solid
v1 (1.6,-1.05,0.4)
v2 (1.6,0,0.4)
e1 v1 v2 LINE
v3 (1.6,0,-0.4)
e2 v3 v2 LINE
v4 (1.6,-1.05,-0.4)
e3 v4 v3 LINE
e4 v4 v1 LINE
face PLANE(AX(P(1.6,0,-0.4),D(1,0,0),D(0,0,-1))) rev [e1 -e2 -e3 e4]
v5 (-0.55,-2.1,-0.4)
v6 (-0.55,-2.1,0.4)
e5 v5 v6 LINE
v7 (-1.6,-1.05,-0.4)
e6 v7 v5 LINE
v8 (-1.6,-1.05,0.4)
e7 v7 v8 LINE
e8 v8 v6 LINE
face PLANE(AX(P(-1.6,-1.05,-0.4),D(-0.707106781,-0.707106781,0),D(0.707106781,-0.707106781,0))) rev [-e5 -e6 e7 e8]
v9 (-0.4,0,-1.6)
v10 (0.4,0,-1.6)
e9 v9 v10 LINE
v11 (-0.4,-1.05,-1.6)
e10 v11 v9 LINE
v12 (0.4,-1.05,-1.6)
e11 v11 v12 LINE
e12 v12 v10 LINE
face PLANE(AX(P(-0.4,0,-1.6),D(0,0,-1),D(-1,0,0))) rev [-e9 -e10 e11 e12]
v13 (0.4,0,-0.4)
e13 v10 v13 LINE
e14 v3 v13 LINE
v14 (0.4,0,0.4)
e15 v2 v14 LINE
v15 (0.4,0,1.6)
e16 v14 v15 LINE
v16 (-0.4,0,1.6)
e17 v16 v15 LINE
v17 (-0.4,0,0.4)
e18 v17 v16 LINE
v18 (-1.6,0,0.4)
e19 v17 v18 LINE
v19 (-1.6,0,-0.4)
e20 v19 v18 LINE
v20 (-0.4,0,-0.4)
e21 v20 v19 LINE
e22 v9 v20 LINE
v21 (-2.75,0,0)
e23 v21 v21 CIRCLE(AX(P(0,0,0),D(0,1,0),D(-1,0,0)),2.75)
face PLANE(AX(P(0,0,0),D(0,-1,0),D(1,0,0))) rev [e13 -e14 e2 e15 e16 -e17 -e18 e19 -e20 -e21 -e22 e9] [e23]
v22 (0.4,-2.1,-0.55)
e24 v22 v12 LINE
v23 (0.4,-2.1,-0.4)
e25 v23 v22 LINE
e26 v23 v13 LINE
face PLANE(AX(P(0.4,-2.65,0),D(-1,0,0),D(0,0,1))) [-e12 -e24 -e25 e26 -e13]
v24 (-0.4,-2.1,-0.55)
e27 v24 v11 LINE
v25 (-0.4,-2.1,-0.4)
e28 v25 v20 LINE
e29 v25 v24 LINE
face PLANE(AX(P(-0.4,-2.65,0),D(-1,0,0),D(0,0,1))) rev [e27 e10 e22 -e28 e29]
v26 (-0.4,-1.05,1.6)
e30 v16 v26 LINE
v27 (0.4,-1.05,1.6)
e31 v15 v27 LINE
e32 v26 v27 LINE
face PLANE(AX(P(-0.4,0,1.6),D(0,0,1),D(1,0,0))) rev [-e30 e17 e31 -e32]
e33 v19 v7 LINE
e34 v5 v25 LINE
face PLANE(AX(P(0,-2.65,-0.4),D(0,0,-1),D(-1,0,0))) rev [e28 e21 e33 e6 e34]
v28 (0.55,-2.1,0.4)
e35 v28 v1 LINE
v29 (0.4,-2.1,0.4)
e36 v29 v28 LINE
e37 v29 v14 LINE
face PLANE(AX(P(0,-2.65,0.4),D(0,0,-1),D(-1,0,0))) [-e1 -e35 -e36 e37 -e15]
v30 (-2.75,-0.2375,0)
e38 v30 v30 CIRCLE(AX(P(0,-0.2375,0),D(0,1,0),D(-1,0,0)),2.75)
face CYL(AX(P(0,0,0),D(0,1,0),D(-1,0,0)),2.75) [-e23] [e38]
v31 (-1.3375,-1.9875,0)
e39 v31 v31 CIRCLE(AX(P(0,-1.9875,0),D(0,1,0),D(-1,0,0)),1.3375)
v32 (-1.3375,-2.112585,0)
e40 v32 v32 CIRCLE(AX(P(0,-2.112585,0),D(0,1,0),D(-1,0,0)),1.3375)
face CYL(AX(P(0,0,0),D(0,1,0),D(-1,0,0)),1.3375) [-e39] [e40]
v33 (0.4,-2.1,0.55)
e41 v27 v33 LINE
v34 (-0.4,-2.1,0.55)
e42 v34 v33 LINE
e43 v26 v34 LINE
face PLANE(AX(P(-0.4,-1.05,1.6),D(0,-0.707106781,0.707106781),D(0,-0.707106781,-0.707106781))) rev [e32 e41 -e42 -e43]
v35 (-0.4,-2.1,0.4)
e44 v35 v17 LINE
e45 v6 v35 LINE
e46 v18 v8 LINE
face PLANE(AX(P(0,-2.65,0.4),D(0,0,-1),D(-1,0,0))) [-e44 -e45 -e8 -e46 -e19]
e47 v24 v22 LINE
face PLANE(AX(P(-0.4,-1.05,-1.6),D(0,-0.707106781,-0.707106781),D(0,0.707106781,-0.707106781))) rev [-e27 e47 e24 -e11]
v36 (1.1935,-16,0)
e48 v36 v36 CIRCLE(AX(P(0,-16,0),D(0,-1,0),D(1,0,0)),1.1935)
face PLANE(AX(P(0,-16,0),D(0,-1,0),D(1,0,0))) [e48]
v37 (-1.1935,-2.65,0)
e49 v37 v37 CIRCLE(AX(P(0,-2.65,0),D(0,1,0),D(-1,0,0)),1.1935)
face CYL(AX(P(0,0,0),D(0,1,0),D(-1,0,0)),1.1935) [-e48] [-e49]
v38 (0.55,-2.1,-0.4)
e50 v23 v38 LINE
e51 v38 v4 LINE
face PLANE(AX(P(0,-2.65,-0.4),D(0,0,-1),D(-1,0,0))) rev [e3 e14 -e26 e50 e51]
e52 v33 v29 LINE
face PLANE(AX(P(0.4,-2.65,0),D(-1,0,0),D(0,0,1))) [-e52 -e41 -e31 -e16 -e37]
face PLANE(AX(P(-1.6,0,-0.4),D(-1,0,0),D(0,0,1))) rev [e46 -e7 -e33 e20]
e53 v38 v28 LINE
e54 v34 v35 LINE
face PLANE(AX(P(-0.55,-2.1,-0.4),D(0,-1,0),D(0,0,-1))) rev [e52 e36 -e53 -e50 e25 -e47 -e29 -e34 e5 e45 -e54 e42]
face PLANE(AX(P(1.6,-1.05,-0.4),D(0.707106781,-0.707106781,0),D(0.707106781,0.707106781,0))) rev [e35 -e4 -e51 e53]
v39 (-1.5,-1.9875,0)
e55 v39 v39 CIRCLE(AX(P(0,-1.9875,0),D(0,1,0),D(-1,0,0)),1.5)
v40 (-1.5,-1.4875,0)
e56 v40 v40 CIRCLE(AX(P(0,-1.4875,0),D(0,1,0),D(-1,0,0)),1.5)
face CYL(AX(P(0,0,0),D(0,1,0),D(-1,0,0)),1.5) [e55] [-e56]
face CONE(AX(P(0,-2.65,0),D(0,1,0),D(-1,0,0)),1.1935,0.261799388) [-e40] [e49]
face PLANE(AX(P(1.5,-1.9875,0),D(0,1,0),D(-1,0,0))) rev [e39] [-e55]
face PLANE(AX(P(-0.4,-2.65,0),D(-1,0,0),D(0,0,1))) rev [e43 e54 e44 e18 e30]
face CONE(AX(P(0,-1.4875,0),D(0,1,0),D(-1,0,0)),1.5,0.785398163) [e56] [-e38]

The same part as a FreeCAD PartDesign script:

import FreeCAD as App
import Part
import Sketcher
from FreeCAD import Vector
Q = App.Units.Quantity

doc = App.newDocument("Part")
params = doc.addObject("Spreadsheet::Sheet", "Params")
for row, (alias, value) in enumerate([
    ("sketch1_height", "8 mm"),
    ("sketch1_height2", "0.5 mm"),
    ("sketch1_width", "2.75 mm"),
    ("sketch1_height3", "5.35 mm"),
    ("revolution_angle", "360 deg"),
    ("sketch2_width", "1.1 mm"),
    ("sketch2_width2", "3.2 mm"),
    ("sketch2_height", "1.05 mm"),
    ("pocket1_length", "0.4 mm"),
    ("pocket1_length2", "0.4 mm"),
    ("sketch3_height", "1.1 mm"),
    ("sketch3_height2", "3.2 mm"),
    ("sketch3_width", "1.05 mm"),
    ("pocket2_length", "0.4 mm"),
    ("pocket2_length2", "0.4 mm"),
    ("pad1_length", "8 mm"),
], start=1):
    params.set(f"A{row}", alias)
    params.set(f"B{row}", "=" + value)
    params.setAlias(f"B{row}", alias)

body = doc.addObject("PartDesign::Body", "Body")

sketch1 = doc.addObject("Sketcher::SketchObject", "Sketch")
body.addObject(sketch1)
sketch1.AttachmentSupport = (doc.XY_Plane, [""])
sketch1.MapMode = "FlatFace"
sketch1.addGeometry([
    Part.LineSegment(Vector(2.75, 0, 0), Vector(0, 0, 0)),
    Part.LineSegment(Vector(0, 0, 0), Vector(0, -8, 0)),
    Part.LineSegment(Vector(0, -8, 0), Vector(1.19, -8, 0)),
    Part.LineSegment(Vector(1.19, -8, 0), Vector(1.19, -2.65, 0)),
    Part.LineSegment(Vector(1.19, -2.65, 0), Vector(1.34, -2.11, 0)),
    Part.LineSegment(Vector(1.34, -2.11, 0), Vector(1.34, -1.99, 0)),
    Part.LineSegment(Vector(1.34, -1.99, 0), Vector(1.5, -1.99, 0)),
    Part.LineSegment(Vector(1.5, -1.99, 0), Vector(1.5, -1.49, 0)),
    Part.LineSegment(Vector(1.5, -1.49, 0), Vector(2.75, -0.24, 0)),
    Part.LineSegment(Vector(2.75, -0.24, 0), Vector(2.75, 0, 0)),
], False)
sketch1.addConstraint([
    Sketcher.Constraint("Coincident", 0, 2, 1, 1),
    Sketcher.Constraint("Coincident", 1, 2, 2, 1),
    Sketcher.Constraint("Coincident", 2, 2, 3, 1),
    Sketcher.Constraint("Coincident", 3, 2, 4, 1),
    Sketcher.Constraint("Coincident", 4, 2, 5, 1),
    Sketcher.Constraint("Coincident", 5, 2, 6, 1),
    Sketcher.Constraint("Coincident", 6, 2, 7, 1),
    Sketcher.Constraint("Coincident", 7, 2, 8, 1),
    Sketcher.Constraint("Coincident", 8, 2, 9, 1),
    Sketcher.Constraint("Coincident", 9, 2, 0, 1),
    Sketcher.Constraint("Horizontal", 0),
    Sketcher.Constraint("Vertical", 1),
    Sketcher.Constraint("Horizontal", 2),
    Sketcher.Constraint("Vertical", 3),
    Sketcher.Constraint("Vertical", 5),
    Sketcher.Constraint("Horizontal", 6),
    Sketcher.Constraint("Vertical", 7),
    Sketcher.Constraint("Vertical", 9),
    Sketcher.Constraint("Coincident", 0, 2, -1, 1),
    Sketcher.Constraint("DistanceY", 1, 2, 1, 1, Q("8 mm")),
    Sketcher.Constraint("Angle", 4, Q("75 deg")),
    Sketcher.Constraint("Angle", 8, Q("45 deg")),
    Sketcher.Constraint("DistanceY", 7, 1, 7, 2, Q("0.5 mm")),
    Sketcher.Constraint("DistanceX", 0, 2, 0, 1, Q("2.75 mm")),
    Sketcher.Constraint("DistanceY", 3, 1, 3, 2, Q("5.35 mm")),
    Sketcher.Constraint("DistanceX", -1, 1, 6, 2, Q("1.5 mm")),
    Sketcher.Constraint("DistanceX", 2, 1, 2, 2, Q("1.1935 mm")),
    Sketcher.Constraint("DistanceX", 6, 1, 6, 2, Q("0.1625 mm")),
    Sketcher.Constraint("DistanceY", 9, 1, 9, 2, Q("0.2375 mm")),
])
sketch1.setExpression("Constraints[19]", "Params.sketch1_height")
sketch1.setExpression("Constraints[22]", "Params.sketch1_height2")
sketch1.setExpression("Constraints[23]", "Params.sketch1_width")
sketch1.setExpression("Constraints[24]", "Params.sketch1_height3")
revolution = doc.addObject("PartDesign::Revolution", "Revolution")
body.addObject(revolution)
revolution.Profile = sketch1
revolution.ReferenceAxis = (sketch1, ["V_Axis"])
revolution.setExpression("Angle", "Params.revolution_angle")

sketch2 = doc.addObject("Sketcher::SketchObject", "Sketch001")
body.addObject(sketch2)
sketch2.AttachmentSupport = (doc.XY_Plane, [""])
sketch2.MapMode = "FlatFace"
sketch2.addGeometry([
    Part.LineSegment(Vector(-0.6, -2.1, 0), Vector(0.6, -2.1, 0)),
    Part.LineSegment(Vector(0.6, -2.1, 0), Vector(1.6, -1.1, 0)),
    Part.LineSegment(Vector(1.6, -1.1, 0), Vector(1.6, 0, 0)),
    Part.LineSegment(Vector(1.6, 0, 0), Vector(-1.6, 0, 0)),
    Part.LineSegment(Vector(-1.6, 0, 0), Vector(-1.6, -1.1, 0)),
    Part.LineSegment(Vector(-1.6, -1.1, 0), Vector(-0.6, -2.1, 0)),
], False)
sketch2.addConstraint([
    Sketcher.Constraint("Coincident", 0, 2, 1, 1),
    Sketcher.Constraint("Coincident", 1, 2, 2, 1),
    Sketcher.Constraint("Coincident", 2, 2, 3, 1),
    Sketcher.Constraint("Coincident", 3, 2, 4, 1),
    Sketcher.Constraint("Coincident", 4, 2, 5, 1),
    Sketcher.Constraint("Coincident", 5, 2, 0, 1),
    Sketcher.Constraint("Horizontal", 0),
    Sketcher.Constraint("Vertical", 2),
    Sketcher.Constraint("Horizontal", 3),
    Sketcher.Constraint("Vertical", 4),
    Sketcher.Constraint("Symmetric", 2, 2, 3, 2, -1, 1),
    Sketcher.Constraint("Perpendicular", 1, 5),
    Sketcher.Constraint("Horizontal", 1, 2, 4, 2),
    Sketcher.Constraint("Equal", 1, 5),
    Sketcher.Constraint("DistanceX", 0, 1, 0, 2, Q("1.1 mm")),
    Sketcher.Constraint("DistanceX", 3, 2, 3, 1, Q("3.2 mm")),
    Sketcher.Constraint("DistanceY", 2, 1, 2, 2, Q("1.05 mm")),
])
sketch2.setExpression("Constraints[14]", "Params.sketch2_width")
sketch2.setExpression("Constraints[15]", "Params.sketch2_width2")
sketch2.setExpression("Constraints[16]", "Params.sketch2_height")
pocket1 = doc.addObject("PartDesign::Pocket", "Pocket")
body.addObject(pocket1)
pocket1.Profile = sketch2
pocket1.Type = "TwoLengths"
pocket1.setExpression("Length", "Params.pocket1_length")
pocket1.setExpression("Length2", "Params.pocket1_length2")
pocket1.Reversed = True

sketch3 = doc.addObject("Sketcher::SketchObject", "Sketch002")
body.addObject(sketch3)
sketch3.AttachmentSupport = (doc.YZ_Plane, [""])
sketch3.MapMode = "FlatFace"
sketch3.addGeometry([
    Part.LineSegment(Vector(-2.1, 0.6, 0), Vector(-2.1, -0.6, 0)),
    Part.LineSegment(Vector(-2.1, -0.6, 0), Vector(-1.1, -1.6, 0)),
    Part.LineSegment(Vector(-1.1, -1.6, 0), Vector(0, -1.6, 0)),
    Part.LineSegment(Vector(0, -1.6, 0), Vector(0, 1.6, 0)),
    Part.LineSegment(Vector(0, 1.6, 0), Vector(-1.1, 1.6, 0)),
    Part.LineSegment(Vector(-1.1, 1.6, 0), Vector(-2.1, 0.6, 0)),
], False)
sketch3.addConstraint([
    Sketcher.Constraint("Coincident", 0, 2, 1, 1),
    Sketcher.Constraint("Coincident", 1, 2, 2, 1),
    Sketcher.Constraint("Coincident", 2, 2, 3, 1),
    Sketcher.Constraint("Coincident", 3, 2, 4, 1),
    Sketcher.Constraint("Coincident", 4, 2, 5, 1),
    Sketcher.Constraint("Coincident", 5, 2, 0, 1),
    Sketcher.Constraint("Vertical", 0),
    Sketcher.Constraint("Horizontal", 2),
    Sketcher.Constraint("Vertical", 3),
    Sketcher.Constraint("Horizontal", 4),
    Sketcher.Constraint("Symmetric", 2, 2, 3, 2, -1, 1),
    Sketcher.Constraint("Perpendicular", 1, 5),
    Sketcher.Constraint("Vertical", 1, 2, 4, 2),
    Sketcher.Constraint("Equal", 1, 5),
    Sketcher.Constraint("DistanceY", 0, 2, 0, 1, Q("1.1 mm")),
    Sketcher.Constraint("DistanceY", 3, 1, 3, 2, Q("3.2 mm")),
    Sketcher.Constraint("DistanceX", 2, 1, 2, 2, Q("1.05 mm")),
])
sketch3.setExpression("Constraints[14]", "Params.sketch3_height")
sketch3.setExpression("Constraints[15]", "Params.sketch3_height2")
sketch3.setExpression("Constraints[16]", "Params.sketch3_width")
pocket2 = doc.addObject("PartDesign::Pocket", "Pocket001")
body.addObject(pocket2)
pocket2.Profile = sketch3
pocket2.Type = "TwoLengths"
pocket2.setExpression("Length", "Params.pocket2_length")
pocket2.setExpression("Length2", "Params.pocket2_length2")
pocket2.Reversed = True

sketch4 = doc.addObject("Sketcher::SketchObject", "Sketch003")
body.addObject(sketch4)
sketch4.AttachmentSupport = (doc.XZ_Plane, [""])
sketch4.MapMode = "FlatFace"
sketch4.AttachmentOffset = App.Placement(Vector(0, 0, 16), App.Rotation())
sketch4.addGeometry(Part.Circle(Vector(0, 0, 0), Vector(0, 0, 1), 1.2), False)
sketch4.addConstraint([
    Sketcher.Constraint("Coincident", 0, 3, -1, 1),
    Sketcher.Constraint("Diameter", 0, Q("2.387 mm")),
])
pad1 = doc.addObject("PartDesign::Pad", "Pad")
body.addObject(pad1)
pad1.Profile = sketch4
pad1.setExpression("Length", "Params.pad1_length")
pad1.Reversed = True

doc.recompute()
